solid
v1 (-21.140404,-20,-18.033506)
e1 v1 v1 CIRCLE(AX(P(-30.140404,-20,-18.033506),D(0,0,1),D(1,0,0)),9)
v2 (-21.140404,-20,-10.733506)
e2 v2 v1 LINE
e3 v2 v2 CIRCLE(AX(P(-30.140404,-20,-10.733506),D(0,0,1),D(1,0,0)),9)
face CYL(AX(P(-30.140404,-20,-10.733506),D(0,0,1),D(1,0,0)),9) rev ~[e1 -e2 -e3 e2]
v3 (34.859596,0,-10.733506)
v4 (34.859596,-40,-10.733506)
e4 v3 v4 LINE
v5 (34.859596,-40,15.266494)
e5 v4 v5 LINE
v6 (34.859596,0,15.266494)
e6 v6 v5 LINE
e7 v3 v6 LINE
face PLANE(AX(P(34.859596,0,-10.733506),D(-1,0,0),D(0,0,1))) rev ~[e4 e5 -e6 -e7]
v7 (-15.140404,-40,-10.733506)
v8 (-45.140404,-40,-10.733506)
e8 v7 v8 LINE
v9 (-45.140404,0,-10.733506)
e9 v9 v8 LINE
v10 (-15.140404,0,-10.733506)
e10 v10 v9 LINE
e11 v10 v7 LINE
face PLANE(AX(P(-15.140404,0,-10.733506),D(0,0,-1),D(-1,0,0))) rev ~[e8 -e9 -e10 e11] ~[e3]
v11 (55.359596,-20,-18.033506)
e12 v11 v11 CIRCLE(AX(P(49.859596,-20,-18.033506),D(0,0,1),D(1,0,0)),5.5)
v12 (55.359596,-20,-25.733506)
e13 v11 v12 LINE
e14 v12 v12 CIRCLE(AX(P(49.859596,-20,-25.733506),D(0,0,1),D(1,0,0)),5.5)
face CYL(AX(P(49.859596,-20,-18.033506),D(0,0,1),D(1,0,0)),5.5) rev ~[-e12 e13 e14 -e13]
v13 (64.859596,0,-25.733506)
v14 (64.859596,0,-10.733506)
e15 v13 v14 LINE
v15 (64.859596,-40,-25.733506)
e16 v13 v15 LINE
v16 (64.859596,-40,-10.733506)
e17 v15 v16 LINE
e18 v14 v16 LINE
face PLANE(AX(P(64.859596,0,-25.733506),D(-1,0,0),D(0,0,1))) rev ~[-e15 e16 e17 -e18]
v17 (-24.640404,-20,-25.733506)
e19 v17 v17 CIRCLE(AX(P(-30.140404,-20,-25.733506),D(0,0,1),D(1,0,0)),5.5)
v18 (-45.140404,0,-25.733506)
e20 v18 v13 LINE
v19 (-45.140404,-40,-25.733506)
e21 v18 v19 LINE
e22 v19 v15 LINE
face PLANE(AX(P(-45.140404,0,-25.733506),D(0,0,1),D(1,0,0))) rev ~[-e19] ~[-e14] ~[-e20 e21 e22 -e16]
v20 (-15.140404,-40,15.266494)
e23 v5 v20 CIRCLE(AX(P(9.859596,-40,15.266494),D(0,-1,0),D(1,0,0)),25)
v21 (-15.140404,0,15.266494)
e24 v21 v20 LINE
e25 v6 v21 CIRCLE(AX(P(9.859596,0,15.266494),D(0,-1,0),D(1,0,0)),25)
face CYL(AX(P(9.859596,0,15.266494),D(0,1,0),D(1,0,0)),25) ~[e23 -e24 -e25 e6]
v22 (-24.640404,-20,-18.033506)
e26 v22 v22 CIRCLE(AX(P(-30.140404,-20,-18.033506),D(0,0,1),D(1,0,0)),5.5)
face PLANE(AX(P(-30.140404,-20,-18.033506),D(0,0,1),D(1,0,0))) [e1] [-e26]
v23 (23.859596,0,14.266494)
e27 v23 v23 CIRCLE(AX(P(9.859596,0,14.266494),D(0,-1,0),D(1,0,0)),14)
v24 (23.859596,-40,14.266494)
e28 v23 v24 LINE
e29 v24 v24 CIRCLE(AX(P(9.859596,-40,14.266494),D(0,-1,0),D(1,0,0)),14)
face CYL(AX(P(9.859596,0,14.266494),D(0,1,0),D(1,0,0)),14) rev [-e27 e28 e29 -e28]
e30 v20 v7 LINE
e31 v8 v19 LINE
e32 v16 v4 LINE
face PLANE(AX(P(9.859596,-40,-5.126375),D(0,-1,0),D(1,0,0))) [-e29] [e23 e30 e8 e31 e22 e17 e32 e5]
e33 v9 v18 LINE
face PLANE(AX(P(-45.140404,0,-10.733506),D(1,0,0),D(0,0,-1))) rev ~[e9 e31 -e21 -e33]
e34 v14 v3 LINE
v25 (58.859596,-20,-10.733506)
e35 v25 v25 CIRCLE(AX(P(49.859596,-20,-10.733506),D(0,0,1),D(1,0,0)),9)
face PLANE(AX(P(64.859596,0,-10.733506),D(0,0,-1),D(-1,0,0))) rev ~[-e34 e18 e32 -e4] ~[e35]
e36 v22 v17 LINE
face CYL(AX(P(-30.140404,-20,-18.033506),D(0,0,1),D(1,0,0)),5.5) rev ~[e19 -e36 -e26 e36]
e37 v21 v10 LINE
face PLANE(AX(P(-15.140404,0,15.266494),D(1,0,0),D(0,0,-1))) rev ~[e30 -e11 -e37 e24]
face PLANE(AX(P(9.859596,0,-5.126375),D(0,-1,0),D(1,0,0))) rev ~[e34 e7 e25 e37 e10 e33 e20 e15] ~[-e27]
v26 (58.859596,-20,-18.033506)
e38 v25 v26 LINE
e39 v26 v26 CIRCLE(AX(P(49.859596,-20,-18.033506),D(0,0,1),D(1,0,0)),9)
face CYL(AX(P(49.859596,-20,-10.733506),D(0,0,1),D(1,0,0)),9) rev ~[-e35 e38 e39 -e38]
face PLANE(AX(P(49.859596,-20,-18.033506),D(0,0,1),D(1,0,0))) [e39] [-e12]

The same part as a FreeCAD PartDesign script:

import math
import FreeCAD as App
import Part
import Sketcher

V = App.Vector

doc = App.newDocument("Part")
body = doc.addObject("PartDesign::Body", "Body")

sketch1 = doc.addObject("Sketcher::SketchObject", "Sketch")
body.addObject(sketch1)
sketch1.AttachmentSupport = (doc.XZ_Plane, [""])
sketch1.MapMode = "FlatFace"
sketch1.addGeometry([
    Part.LineSegment(V(-15, -11, 0), V(-45, -11, 0)),
    Part.LineSegment(V(-45, -11, 0), V(-45, -26, 0)),
    Part.LineSegment(V(-45, -26, 0), V(65, -26, 0)),
    Part.LineSegment(V(65, -26, 0), V(65, -11, 0)),
    Part.LineSegment(V(65, -11, 0), V(35, -11, 0)),
    Part.LineSegment(V(35, -11, 0), V(35, 15, 0)),
    Part.ArcOfCircle(Part.Circle(V(10, 15, 0), V(0, 0, 1), 25), math.radians(0), math.radians(180)),
    Part.LineSegment(V(-15, 15, 0), V(-15, -11, 0)),
    Part.Circle(V(10, 14, 0), V(0, 0, 1), 14),
], False)
sketch1.addConstraint([
    Sketcher.Constraint("Coincident", 0, 2, 1, 1),
    Sketcher.Constraint("Coincident", 1, 2, 2, 1),
    Sketcher.Constraint("Coincident", 2, 2, 3, 1),
    Sketcher.Constraint("Coincident", 3, 2, 4, 1),
    Sketcher.Constraint("Coincident", 4, 2, 5, 1),
    Sketcher.Constraint("Tangent", 5, 2, 6, 1),
    Sketcher.Constraint("Tangent", 6, 2, 7, 1),
    Sketcher.Constraint("Coincident", 7, 2, 0, 1),
    Sketcher.Constraint("Horizontal", 0),
    Sketcher.Constraint("Vertical", 1),
    Sketcher.Constraint("Horizontal", 2),
    Sketcher.Constraint("Vertical", 3),
    Sketcher.Constraint("Horizontal", 4),
    Sketcher.Constraint("Vertical", 5),
    Sketcher.Constraint("Vertical", 7),
    Sketcher.Constraint("Horizontal", 0, 2, 3, 2),
    Sketcher.Constraint("Vertical", 6, 3, 8, 3),
    Sketcher.Constraint("Equal", 0, 4),
    Sketcher.Constraint("Diameter", 8, 28.0),
    Sketcher.Constraint("Radius", 6, 25.0),
    Sketcher.Constraint("DistanceX", 0, 2, 0, 1, 30.0),
    Sketcher.Constraint("DistanceY", 1, 2, 1, 1, 15.0),
    Sketcher.Constraint("DistanceY", 5, 1, 5, 2, 26.0),
    Sketcher.Constraint("DistanceY", 8, 3, 6, 3, 1.0),
    Sketcher.Constraint("DistanceX", -1, 1, 6, 3, 9.859596),
    Sketcher.Constraint("DistanceY", -1, 1, 6, 3, 15.266494),
])
pad1 = doc.addObject("PartDesign::Pad", "Pad")
body.addObject(pad1)
pad1.Profile = sketch1
pad1.Length = 40

sketch2 = doc.addObject("Sketcher::SketchObject", "Sketch001")
body.addObject(sketch2)
sketch2.AttachmentSupport = (doc.XY_Plane, [""])
sketch2.MapMode = "FlatFace"
sketch2.AttachmentOffset = App.Placement(V(0, 0, -10.733506), App.Rotation())
sketch2.addGeometry([
    Part.Circle(V(-30, -20, 0), V(0, 0, 1), 9),
    Part.Circle(V(50, -20, 0), V(0, 0, 1), 9),
], False)
sketch2.addConstraint([
    Sketcher.Constraint("Equal", 0, 1),
    Sketcher.Constraint("Horizontal", 0, 3, 1, 3),
    Sketcher.Constraint("Diameter", 0, 18.0),
    Sketcher.Constraint("DistanceY", 0, 3, -1, 1, 20.0),
    Sketcher.Constraint("DistanceX", 0, 3, 1, 3, 80.0),
    Sketcher.Constraint("DistanceX", 0, 3, -1, 1, 30.140404),
])
pocket1 = doc.addObject("PartDesign::Pocket", "Pocket")
body.addObject(pocket1)
pocket1.Profile = sketch2
pocket1.Length = 7.3

sketch3 = doc.addObject("Sketcher::SketchObject", "Sketch002")
body.addObject(sketch3)
sketch3.AttachmentSupport = (doc.XY_Plane, [""])
sketch3.MapMode = "FlatFace"
sketch3.AttachmentOffset = App.Placement(V(0, 0, -18.033506), App.Rotation())
sketch3.addGeometry([
    Part.Circle(V(-30, -20, 0), V(0, 0, 1), 6),
    Part.Circle(V(50, -20, 0), V(0, 0, 1), 6),
], False)
sketch3.addConstraint([
    Sketcher.Constraint("Equal", 0, 1),
    Sketcher.Constraint("Horizontal", 0, 3, 1, 3),
    Sketcher.Constraint("Diameter", 0, 11.0),
    Sketcher.Constraint("DistanceY", 0, 3, -1, 1, 20.0),
    Sketcher.Constraint("DistanceX", 0, 3, 1, 3, 80.0),
    Sketcher.Constraint("DistanceX", 0, 3, -1, 1, 30.140404),
])
pocket2 = doc.addObject("PartDesign::Pocket", "Pocket001")
body.addObject(pocket2)
pocket2.Profile = sketch3
pocket2.Length = 25

doc.recompute()
